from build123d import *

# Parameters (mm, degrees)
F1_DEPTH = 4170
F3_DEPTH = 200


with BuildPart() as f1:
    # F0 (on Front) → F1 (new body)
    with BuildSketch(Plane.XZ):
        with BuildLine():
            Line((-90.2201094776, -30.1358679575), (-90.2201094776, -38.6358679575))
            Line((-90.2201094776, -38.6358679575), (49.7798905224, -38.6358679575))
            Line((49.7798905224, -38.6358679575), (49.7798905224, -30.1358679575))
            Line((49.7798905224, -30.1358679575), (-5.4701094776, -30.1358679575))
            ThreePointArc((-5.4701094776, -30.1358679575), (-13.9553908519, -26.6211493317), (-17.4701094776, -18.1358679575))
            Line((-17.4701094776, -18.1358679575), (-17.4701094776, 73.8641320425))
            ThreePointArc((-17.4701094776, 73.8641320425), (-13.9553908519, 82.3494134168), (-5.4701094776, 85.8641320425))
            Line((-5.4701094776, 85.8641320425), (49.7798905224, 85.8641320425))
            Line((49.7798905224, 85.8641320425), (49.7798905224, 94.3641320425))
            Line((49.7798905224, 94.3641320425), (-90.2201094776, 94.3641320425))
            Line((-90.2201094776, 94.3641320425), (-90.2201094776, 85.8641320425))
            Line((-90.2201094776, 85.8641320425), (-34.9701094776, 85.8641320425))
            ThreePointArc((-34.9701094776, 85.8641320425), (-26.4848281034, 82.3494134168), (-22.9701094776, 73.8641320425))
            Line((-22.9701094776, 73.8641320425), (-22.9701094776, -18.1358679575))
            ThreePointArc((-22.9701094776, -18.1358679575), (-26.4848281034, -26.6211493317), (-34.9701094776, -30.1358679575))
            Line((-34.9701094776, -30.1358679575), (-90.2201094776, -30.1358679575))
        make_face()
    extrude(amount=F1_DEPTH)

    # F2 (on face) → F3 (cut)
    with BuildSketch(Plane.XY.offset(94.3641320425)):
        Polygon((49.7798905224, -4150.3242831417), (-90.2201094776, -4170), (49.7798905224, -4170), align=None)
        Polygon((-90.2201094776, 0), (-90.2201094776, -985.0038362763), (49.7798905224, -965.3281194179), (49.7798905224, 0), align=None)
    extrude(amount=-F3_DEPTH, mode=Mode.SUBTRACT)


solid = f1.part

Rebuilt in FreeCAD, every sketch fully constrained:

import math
import FreeCAD as App
import Part
import Sketcher

V = App.Vector
Q = App.Units.Quantity


def add_polygon(sketch, points):
    """Adds a closed chain of lines whose ends are joined by coincident constraints."""
    first, n = sketch.GeometryCount, len(points)
    for a, b in zip(points, points[1:] + points[:1]):
        sketch.addGeometry(Part.LineSegment(App.Vector(*a, 0), App.Vector(*b, 0)), False)
    for i in range(n):
        sketch.addConstraint(Sketcher.Constraint("Coincident", first + i, 2, first + (i + 1) % n, 1))

doc = App.newDocument("Part")
params = doc.addObject("Spreadsheet::Sheet", "Params")
for row, (alias, value) in enumerate([
    ("sketch1_radius", "12 mm"),
    ("sketch1_width", "140 mm"),
    ("sketch1_height", "92 mm"),
    ("sketch1_height2", "8.5 mm"),
    ("sketch1_width2", "55.25 mm"),
    ("pad1_length", "4170 mm"),
    ("sketch2_width", "140 mm"),
    ("pocket1_length", "200 mm"),
], start=1):
    params.set(f"A{row}", alias)
    params.set(f"B{row}", "=" + value)
    params.setAlias(f"B{row}", alias)

body = doc.addObject("PartDesign::Body", "Body")

# Sketch on XZ plane
sketch1 = doc.addObject("Sketcher::SketchObject", "Sketch")
body.addObject(sketch1)
sketch1.AttachmentSupport = (doc.XZ_Plane, [""])
sketch1.MapMode = "FlatFace"
sketch1.addGeometry(Part.LineSegment(V(-90.220109, -30.135868, 0), V(-90.220109, -38.635868, 0)), False)
sketch1.addGeometry(Part.LineSegment(V(-90.220109, -38.635868, 0), V(49.779891, -38.635868, 0)), False)
sketch1.addGeometry(Part.LineSegment(V(49.779891, -38.635868, 0), V(49.779891, -30.135868, 0)), False)
sketch1.addGeometry(Part.LineSegment(V(49.779891, -30.135868, 0), V(-5.470109, -30.135868, 0)), False)
sketch1.addGeometry(Part.ArcOfCircle(Part.Circle(V(-5.470109, -18.135868, 0), V(0, 0, 1), 12), math.radians(180), math.radians(270)), False)
sketch1.addGeometry(Part.LineSegment(V(-17.470109, -18.135868, 0), V(-17.470109, 73.864132, 0)), False)
sketch1.addGeometry(Part.ArcOfCircle(Part.Circle(V(-5.470109, 73.864132, 0), V(0, 0, 1), 12), math.radians(90), math.radians(180)), False)
sketch1.addGeometry(Part.LineSegment(V(-5.470109, 85.864132, 0), V(49.779891, 85.864132, 0)), False)
sketch1.addGeometry(Part.LineSegment(V(49.779891, 85.864132, 0), V(49.779891, 94.364132, 0)), False)
sketch1.addGeometry(Part.LineSegment(V(49.779891, 94.364132, 0), V(-90.220109, 94.364132, 0)), False)
sketch1.addGeometry(Part.LineSegment(V(-90.220109, 94.364132, 0), V(-90.220109, 85.864132, 0)), False)
sketch1.addGeometry(Part.LineSegment(V(-90.220109, 85.864132, 0), V(-34.970109, 85.864132, 0)), False)
sketch1.addGeometry(Part.ArcOfCircle(Part.Circle(V(-34.970109, 73.864132, 0), V(0, 0, 1), 12), math.radians(0), math.radians(90)), False)
sketch1.addGeometry(Part.LineSegment(V(-22.970109, 73.864132, 0), V(-22.970109, -18.135868, 0)), False)
sketch1.addGeometry(Part.ArcOfCircle(Part.Circle(V(-34.970109, -18.135868, 0), V(0, 0, 1), 12), math.radians(-90), math.radians(0)), False)
sketch1.addGeometry(Part.LineSegment(V(-34.970109, -30.135868, 0), V(-90.220109, -30.135868, 0)), False)
sketch1.addConstraint(Sketcher.Constraint("Coincident", 0, 2, 1, 1))
sketch1.addConstraint(Sketcher.Constraint("Coincident", 1, 2, 2, 1))
sketch1.addConstraint(Sketcher.Constraint("Coincident", 2, 2, 3, 1))
sketch1.addConstraint(Sketcher.Constraint("Tangent", 3, 2, 4, 2))
sketch1.addConstraint(Sketcher.Constraint("Tangent", 4, 1, 5, 1))
sketch1.addConstraint(Sketcher.Constraint("Tangent", 5, 2, 6, 2))
sketch1.addConstraint(Sketcher.Constraint("Tangent", 6, 1, 7, 1))
sketch1.addConstraint(Sketcher.Constraint("Coincident", 7, 2, 8, 1))
sketch1.addConstraint(Sketcher.Constraint("Coincident", 8, 2, 9, 1))
sketch1.addConstraint(Sketcher.Constraint("Coincident", 9, 2, 10, 1))
sketch1.addConstraint(Sketcher.Constraint("Coincident", 10, 2, 11, 1))
sketch1.addConstraint(Sketcher.Constraint("Tangent", 11, 2, 12, 2))
sketch1.addConstraint(Sketcher.Constraint("Tangent", 12, 1, 13, 1))
sketch1.addConstraint(Sketcher.Constraint("Tangent", 13, 2, 14, 2))
sketch1.addConstraint(Sketcher.Constraint("Tangent", 14, 1, 15, 1))
sketch1.addConstraint(Sketcher.Constraint("Coincident", 15, 2, 0, 1))
sketch1.addConstraint(Sketcher.Constraint("Vertical", 0))
sketch1.addConstraint(Sketcher.Constraint("Horizontal", 1))
sketch1.addConstraint(Sketcher.Constraint("Vertical", 2))
sketch1.addConstraint(Sketcher.Constraint("Horizontal", 3))
sketch1.addConstraint(Sketcher.Constraint("Vertical", 5))
sketch1.addConstraint(Sketcher.Constraint("Horizontal", 7))
sketch1.addConstraint(Sketcher.Constraint("Vertical", 8))
sketch1.addConstraint(Sketcher.Constraint("Horizontal", 9))
sketch1.addConstraint(Sketcher.Constraint("Vertical", 10))
sketch1.addConstraint(Sketcher.Constraint("Horizontal", 11))
sketch1.addConstraint(Sketcher.Constraint("Vertical", 13))
sketch1.addConstraint(Sketcher.Constraint("Horizontal", 15))
sketch1.addConstraint(Sketcher.Constraint("Equal", 4, 6))
sketch1.addConstraint(Sketcher.Constraint("Equal", 6, 12))
sketch1.addConstraint(Sketcher.Constraint("Equal", 12, 14))
sketch1.addConstraint(Sketcher.Constraint("Horizontal", 6, 3, 12, 3))
sketch1.addConstraint(Sketcher.Constraint("Horizontal", 4, 3, 14, 3))
sketch1.addConstraint(Sketcher.Constraint("Vertical", 2, 2, 7, 2))
sketch1.addConstraint(Sketcher.Constraint("Vertical", 0, 2, 9, 2))
sketch1.addConstraint(Sketcher.Constraint("Equal", 7, 11))
sketch1.addConstraint(Sketcher.Constraint("Equal", 2, 8))
sketch1.addConstraint(Sketcher.Constraint("Radius", 4, 12.0))
sketch1.addConstraint(Sketcher.Constraint("DistanceX", 1, 1, 1, 2, 140.0))
sketch1.addConstraint(Sketcher.Constraint("DistanceY", 5, 1, 5, 2, 92.0))
sketch1.addConstraint(Sketcher.Constraint("DistanceY", 0, 2, 0, 1, 8.5))
sketch1.addConstraint(Sketcher.Constraint("DistanceX", 3, 2, 3, 1, 55.25))
sketch1.addConstraint(Sketcher.Constraint("DistanceX", 4, 3, -1, 1, 5.470109))
sketch1.addConstraint(Sketcher.Constraint("DistanceY", 4, 3, -1, 1, 18.135868))
sketch1.setExpression("Constraints[37]", "Params.sketch1_radius")
sketch1.setExpression("Constraints[38]", "Params.sketch1_width")
sketch1.setExpression("Constraints[39]", "Params.sketch1_height")
sketch1.setExpression("Constraints[40]", "Params.sketch1_height2")
sketch1.setExpression("Constraints[41]", "Params.sketch1_width2")
pad1 = doc.addObject("PartDesign::Pad", "Pad")
body.addObject(pad1)
pad1.Profile = sketch1
pad1.setExpression("Length", "Params.pad1_length")

# Sketch on XY plane
sketch2 = doc.addObject("Sketcher::SketchObject", "Sketch001")
body.addObject(sketch2)
sketch2.AttachmentSupport = (doc.XY_Plane, [""])
sketch2.MapMode = "FlatFace"
sketch2.AttachmentOffset = App.Placement(V(0, 0, 94.364132), App.Rotation())
add_polygon(sketch2, [(49.779891, -4150.324283), (-90.220109, -4170), (49.779891, -4170)])  # lines 0-2
add_polygon(sketch2, [(-90.220109, 0), (-90.220109, -985.003836), (49.779891, -965.328119), (49.779891, 0)])  # lines 3-6
sketch2.addConstraint(Sketcher.Constraint("Horizontal", 1))
sketch2.addConstraint(Sketcher.Constraint("Vertical", 2))
sketch2.addConstraint(Sketcher.Constraint("Vertical", 3))
sketch2.addConstraint(Sketcher.Constraint("Vertical", 5))
sketch2.addConstraint(Sketcher.Constraint("Horizontal", 6))
sketch2.addConstraint(Sketcher.Constraint("PointOnObject", 5, 2, -1))
sketch2.addConstraint(Sketcher.Constraint("Parallel", 0, 4))
sketch2.addConstraint(Sketcher.Constraint("Vertical", 0, 2, 3, 2))
sketch2.addConstraint(Sketcher.Constraint("Vertical", 2, 2, 4, 2))
sketch2.addConstraint(Sketcher.Constraint("DistanceX", 1, 1, 1, 2, 140.0))
sketch2.addConstraint(Sketcher.Constraint("Angle", 0, Q("-172 deg")))
sketch2.addConstraint(Sketcher.Constraint("DistanceY", 0, 2, -1, 1, 4170.0))
sketch2.addConstraint(Sketcher.Constraint("DistanceY", 5, 1, 5, 2, 965.328119))
sketch2.addConstraint(Sketcher.Constraint("DistanceX", 0, 2, -1, 1, 90.220109))
sketch2.setExpression("Constraints[16]", "Params.sketch2_width")
pocket1 = doc.addObject("PartDesign::Pocket", "Pocket")
body.addObject(pocket1)
pocket1.Profile = sketch2
pocket1.setExpression("Length", "Params.pocket1_length")

doc.recompute()
